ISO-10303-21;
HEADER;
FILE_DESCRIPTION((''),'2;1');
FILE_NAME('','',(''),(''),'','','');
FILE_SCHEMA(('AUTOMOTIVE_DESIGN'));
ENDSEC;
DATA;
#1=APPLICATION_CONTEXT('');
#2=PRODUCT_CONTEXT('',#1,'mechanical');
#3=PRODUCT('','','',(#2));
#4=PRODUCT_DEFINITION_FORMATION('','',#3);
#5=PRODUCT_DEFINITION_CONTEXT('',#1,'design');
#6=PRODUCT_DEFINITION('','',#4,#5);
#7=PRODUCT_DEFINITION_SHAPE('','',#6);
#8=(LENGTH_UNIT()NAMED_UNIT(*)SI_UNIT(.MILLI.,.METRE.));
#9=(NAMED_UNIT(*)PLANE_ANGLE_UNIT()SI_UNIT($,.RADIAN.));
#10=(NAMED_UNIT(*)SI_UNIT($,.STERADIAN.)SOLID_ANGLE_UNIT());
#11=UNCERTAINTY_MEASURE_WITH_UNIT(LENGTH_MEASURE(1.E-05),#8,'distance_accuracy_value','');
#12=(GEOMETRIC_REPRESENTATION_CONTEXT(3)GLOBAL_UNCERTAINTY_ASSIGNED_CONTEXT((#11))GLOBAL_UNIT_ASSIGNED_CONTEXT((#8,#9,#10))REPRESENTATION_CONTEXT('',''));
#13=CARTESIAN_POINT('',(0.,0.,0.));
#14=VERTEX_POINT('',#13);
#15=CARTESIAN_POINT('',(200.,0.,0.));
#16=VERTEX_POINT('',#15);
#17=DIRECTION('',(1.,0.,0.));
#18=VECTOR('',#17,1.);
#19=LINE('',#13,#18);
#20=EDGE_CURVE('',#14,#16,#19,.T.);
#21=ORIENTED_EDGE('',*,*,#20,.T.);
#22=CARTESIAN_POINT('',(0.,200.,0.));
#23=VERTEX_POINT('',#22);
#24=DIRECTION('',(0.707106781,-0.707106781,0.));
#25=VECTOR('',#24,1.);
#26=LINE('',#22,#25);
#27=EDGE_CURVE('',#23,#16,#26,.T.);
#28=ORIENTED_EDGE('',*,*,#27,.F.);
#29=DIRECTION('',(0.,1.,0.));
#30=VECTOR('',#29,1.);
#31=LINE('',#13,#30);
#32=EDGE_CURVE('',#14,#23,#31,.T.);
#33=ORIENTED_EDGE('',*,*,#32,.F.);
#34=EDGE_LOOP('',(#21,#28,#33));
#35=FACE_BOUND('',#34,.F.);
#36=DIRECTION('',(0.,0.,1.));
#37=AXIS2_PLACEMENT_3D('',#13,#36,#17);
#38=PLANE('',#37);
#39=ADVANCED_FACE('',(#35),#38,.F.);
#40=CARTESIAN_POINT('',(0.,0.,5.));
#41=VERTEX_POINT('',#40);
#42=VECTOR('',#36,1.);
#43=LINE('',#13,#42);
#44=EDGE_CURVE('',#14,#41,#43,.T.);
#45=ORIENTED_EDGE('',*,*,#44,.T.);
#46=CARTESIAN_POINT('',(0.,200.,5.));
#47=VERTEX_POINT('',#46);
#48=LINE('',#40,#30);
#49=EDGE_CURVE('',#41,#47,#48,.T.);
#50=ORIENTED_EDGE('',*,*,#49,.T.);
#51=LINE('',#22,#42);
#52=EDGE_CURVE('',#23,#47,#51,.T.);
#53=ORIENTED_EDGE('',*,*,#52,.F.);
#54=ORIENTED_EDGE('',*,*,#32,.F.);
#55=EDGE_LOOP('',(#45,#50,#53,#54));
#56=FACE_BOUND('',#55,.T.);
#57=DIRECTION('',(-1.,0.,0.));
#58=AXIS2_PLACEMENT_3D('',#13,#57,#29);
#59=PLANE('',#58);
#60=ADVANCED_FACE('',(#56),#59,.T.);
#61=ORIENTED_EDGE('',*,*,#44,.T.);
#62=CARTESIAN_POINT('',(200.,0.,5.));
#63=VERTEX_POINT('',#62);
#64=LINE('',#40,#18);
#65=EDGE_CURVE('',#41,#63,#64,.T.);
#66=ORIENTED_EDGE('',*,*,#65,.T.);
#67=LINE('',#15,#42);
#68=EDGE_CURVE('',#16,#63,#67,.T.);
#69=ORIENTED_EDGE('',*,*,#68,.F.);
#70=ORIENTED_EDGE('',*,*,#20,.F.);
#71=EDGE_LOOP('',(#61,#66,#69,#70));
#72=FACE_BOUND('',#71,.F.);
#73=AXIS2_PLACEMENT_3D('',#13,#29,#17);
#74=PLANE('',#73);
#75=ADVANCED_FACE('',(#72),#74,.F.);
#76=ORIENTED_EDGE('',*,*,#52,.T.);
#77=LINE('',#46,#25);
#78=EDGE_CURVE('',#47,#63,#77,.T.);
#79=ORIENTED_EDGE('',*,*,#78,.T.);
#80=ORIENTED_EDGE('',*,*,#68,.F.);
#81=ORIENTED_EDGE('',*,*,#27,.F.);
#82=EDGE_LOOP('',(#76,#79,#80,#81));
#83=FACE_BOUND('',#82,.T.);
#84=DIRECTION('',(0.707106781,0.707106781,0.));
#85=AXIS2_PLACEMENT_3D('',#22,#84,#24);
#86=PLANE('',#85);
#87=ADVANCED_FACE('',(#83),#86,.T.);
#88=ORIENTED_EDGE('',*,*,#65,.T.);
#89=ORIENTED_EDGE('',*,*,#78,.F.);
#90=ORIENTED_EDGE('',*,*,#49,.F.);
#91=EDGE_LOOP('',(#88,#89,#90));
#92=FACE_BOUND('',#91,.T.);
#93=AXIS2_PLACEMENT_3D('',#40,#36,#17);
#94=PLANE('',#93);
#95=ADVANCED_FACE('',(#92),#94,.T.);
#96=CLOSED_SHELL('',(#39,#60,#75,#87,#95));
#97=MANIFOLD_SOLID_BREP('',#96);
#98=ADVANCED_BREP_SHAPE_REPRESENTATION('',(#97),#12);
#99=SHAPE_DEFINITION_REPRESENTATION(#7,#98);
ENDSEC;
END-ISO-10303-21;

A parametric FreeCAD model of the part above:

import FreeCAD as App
import Part
import Sketcher
from FreeCAD import Vector
Q = App.Units.Quantity

doc = App.newDocument("Part")
body = doc.addObject("PartDesign::Body", "Body")

# Sketch on XY plane
sketch1 = doc.addObject("Sketcher::SketchObject", "Sketch")
body.addObject(sketch1)
sketch1.AttachmentSupport = (doc.XY_Plane, [""])
sketch1.MapMode = "FlatFace"
sketch1.addGeometry([
    Part.LineSegment(Vector(0, 200, 0), Vector(0, 0, 0)),
    Part.LineSegment(Vector(0, 0, 0), Vector(200, 0, 0)),
    Part.LineSegment(Vector(200, 0, 0), Vector(0, 200, 0)),
], False)
sketch1.addConstraint([
    Sketcher.Constraint("Coincident", 0, 2, 1, 1),
    Sketcher.Constraint("Coincident", 1, 2, 2, 1),
    Sketcher.Constraint("Coincident", 2, 2, 0, 1),
    Sketcher.Constraint("Vertical", 0),
    Sketcher.Constraint("Horizontal", 1),
    Sketcher.Constraint("Coincident", 0, 2, -1, 1),
    Sketcher.Constraint("Equal", 1, 0),
    Sketcher.Constraint("DistanceX", 1, 1, 1, 2, Q("200 mm")),
])
pad1 = doc.addObject("PartDesign::Pad", "Pad")
body.addObject(pad1)
pad1.Profile = sketch1
pad1.Length = 5

doc.recompute()
